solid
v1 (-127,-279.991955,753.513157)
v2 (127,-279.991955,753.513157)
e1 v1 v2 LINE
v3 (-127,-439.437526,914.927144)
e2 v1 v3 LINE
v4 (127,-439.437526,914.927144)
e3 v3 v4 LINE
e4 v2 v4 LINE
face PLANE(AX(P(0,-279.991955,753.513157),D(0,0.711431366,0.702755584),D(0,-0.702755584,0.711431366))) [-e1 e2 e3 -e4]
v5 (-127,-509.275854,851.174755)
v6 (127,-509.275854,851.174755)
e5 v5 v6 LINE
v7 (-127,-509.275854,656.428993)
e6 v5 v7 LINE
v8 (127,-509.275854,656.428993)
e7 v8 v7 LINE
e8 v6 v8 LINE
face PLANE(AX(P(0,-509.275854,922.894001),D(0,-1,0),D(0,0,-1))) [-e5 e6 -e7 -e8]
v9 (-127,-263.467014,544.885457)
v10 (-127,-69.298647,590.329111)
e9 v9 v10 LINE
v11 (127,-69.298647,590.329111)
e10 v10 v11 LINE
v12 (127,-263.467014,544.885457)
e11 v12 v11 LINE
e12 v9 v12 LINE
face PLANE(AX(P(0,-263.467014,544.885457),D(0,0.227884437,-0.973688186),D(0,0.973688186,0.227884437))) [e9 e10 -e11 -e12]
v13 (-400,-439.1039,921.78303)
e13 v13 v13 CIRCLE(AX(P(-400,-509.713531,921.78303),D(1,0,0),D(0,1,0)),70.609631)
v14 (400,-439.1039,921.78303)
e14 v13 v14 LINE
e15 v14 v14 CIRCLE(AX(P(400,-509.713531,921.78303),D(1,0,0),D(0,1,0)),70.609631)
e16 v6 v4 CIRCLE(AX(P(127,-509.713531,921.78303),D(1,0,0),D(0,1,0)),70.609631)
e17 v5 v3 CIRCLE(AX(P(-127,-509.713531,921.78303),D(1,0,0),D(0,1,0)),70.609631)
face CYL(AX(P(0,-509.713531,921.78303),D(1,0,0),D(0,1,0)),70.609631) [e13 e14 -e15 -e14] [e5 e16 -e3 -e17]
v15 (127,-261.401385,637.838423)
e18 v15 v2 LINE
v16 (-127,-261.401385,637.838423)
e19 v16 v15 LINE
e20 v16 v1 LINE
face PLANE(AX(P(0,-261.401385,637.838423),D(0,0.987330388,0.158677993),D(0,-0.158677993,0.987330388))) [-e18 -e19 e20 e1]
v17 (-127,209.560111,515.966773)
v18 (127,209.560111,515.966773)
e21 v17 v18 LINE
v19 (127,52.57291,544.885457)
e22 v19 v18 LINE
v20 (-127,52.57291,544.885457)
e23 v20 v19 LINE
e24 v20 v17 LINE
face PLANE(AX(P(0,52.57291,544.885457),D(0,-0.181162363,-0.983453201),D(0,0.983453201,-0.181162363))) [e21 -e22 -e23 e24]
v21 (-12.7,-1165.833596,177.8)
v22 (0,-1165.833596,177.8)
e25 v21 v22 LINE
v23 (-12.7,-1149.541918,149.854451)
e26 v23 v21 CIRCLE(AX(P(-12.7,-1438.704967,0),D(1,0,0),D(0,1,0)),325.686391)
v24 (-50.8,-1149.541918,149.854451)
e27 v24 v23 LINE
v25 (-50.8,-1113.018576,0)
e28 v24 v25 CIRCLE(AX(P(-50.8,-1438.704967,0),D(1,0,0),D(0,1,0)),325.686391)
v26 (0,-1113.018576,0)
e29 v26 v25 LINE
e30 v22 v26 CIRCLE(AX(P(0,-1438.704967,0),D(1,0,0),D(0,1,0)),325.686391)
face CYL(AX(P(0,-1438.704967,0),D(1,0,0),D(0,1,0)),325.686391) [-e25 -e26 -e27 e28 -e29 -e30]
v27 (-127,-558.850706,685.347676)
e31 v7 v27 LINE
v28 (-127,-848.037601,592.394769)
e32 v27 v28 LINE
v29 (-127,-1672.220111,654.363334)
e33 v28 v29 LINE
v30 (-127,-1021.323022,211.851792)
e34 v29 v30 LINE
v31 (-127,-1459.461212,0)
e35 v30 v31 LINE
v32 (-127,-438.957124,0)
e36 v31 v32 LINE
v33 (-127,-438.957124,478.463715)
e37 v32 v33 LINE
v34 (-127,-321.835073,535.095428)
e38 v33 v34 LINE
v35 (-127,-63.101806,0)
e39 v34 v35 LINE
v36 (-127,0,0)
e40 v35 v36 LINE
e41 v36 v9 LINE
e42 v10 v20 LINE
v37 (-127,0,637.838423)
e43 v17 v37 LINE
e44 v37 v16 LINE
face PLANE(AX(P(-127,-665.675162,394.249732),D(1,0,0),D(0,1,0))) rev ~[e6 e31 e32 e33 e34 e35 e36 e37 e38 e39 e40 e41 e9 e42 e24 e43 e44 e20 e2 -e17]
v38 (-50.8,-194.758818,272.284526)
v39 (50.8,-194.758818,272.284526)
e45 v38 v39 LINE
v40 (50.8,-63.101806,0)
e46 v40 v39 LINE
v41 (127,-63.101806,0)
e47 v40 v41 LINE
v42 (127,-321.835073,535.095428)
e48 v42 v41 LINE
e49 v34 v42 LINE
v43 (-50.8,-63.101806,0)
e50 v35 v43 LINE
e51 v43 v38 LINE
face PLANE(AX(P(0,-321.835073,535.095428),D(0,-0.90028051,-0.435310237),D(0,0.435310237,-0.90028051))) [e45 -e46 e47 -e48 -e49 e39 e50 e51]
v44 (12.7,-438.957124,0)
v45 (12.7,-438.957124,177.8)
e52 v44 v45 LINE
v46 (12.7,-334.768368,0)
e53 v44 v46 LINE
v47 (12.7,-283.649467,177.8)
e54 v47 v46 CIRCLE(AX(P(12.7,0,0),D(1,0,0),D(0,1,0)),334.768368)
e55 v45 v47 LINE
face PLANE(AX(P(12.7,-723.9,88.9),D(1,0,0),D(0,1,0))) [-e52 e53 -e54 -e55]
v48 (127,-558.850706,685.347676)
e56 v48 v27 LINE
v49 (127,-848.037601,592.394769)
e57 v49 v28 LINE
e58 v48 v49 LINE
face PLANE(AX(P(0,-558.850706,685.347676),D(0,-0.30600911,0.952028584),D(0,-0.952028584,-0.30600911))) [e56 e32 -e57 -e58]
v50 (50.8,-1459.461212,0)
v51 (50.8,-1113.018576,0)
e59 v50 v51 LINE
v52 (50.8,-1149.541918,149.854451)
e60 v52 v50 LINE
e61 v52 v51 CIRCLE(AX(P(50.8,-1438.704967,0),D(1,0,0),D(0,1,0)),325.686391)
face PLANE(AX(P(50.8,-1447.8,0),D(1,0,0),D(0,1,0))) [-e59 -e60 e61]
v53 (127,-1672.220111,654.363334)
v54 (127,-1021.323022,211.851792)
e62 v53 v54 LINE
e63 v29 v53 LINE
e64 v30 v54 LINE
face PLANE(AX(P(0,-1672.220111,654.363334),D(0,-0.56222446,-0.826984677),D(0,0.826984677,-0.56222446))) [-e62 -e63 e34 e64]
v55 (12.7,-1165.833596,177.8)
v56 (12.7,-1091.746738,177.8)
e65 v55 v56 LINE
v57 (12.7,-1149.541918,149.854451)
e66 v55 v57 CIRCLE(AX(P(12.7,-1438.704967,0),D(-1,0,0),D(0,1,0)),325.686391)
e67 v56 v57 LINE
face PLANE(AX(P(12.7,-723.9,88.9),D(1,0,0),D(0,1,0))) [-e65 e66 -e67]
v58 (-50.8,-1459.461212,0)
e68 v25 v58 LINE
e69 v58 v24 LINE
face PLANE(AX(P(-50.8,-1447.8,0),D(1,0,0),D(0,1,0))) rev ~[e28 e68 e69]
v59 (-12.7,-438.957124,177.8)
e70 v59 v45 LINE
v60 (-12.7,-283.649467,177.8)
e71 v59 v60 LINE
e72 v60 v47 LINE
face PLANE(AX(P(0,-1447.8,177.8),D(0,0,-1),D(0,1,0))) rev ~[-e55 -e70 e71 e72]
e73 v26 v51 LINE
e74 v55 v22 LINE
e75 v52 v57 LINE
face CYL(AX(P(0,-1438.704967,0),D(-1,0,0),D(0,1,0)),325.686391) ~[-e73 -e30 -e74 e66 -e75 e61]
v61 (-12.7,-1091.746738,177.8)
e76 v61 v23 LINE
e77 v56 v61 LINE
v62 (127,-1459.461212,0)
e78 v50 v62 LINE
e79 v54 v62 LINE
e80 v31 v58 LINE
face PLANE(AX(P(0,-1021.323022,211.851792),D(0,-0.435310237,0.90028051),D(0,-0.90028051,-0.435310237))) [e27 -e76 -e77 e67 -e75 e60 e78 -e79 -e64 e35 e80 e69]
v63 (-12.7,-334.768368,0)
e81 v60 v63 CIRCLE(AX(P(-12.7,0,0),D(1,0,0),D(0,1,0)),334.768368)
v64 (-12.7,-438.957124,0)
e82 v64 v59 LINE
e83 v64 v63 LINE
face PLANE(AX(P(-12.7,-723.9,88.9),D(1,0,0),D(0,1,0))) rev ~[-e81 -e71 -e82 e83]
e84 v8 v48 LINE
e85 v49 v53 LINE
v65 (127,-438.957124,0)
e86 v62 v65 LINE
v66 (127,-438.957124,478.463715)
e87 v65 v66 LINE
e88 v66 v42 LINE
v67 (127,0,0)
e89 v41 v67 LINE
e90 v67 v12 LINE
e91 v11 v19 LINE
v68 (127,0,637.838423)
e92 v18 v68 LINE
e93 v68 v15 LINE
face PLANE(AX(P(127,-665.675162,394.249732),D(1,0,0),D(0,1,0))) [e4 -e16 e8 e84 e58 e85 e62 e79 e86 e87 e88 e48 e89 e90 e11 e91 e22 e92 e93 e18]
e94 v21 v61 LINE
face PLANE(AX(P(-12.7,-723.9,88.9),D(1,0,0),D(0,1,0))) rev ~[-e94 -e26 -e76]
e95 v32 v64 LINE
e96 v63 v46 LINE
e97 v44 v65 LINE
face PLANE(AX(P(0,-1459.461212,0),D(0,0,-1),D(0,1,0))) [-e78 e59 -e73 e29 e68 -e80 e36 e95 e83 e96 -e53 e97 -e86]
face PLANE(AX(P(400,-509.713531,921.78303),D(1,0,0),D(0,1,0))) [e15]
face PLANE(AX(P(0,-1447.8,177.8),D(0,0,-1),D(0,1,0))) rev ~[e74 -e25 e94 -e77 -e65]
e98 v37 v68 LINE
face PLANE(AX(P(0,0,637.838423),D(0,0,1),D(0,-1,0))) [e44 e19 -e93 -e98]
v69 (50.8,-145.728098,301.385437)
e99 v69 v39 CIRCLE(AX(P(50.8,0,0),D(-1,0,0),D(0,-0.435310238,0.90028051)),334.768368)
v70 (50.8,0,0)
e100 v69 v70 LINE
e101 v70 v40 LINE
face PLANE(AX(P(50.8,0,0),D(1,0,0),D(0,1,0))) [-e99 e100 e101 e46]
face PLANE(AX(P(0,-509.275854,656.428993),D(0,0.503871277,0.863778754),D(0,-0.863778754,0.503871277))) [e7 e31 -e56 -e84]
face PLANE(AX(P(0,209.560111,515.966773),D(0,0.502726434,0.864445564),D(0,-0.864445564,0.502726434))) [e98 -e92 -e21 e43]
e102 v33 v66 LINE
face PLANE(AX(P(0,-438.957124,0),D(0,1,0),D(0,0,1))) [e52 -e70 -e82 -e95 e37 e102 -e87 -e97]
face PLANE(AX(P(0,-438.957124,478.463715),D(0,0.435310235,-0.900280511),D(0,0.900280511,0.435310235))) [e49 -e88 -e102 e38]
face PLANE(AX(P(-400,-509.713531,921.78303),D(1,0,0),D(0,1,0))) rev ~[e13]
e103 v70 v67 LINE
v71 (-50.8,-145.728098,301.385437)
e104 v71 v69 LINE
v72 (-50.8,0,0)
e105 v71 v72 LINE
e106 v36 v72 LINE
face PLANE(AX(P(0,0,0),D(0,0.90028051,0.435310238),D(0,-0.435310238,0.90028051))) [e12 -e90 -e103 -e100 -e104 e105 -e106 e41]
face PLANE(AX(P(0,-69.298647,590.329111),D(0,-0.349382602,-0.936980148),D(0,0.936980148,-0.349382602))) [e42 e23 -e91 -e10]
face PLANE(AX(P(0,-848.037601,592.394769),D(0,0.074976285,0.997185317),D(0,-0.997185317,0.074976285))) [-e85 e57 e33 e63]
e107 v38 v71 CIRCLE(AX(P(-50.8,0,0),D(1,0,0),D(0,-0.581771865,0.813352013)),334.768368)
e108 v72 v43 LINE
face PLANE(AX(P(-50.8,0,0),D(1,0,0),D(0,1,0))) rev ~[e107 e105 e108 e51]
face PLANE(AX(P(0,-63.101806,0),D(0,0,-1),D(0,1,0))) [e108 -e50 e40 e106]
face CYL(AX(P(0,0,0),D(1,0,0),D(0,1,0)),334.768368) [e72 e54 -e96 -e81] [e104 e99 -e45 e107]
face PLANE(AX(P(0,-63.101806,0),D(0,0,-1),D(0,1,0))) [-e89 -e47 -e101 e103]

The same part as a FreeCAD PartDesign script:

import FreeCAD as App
import Part
import Sketcher
Q = App.Units.Quantity

doc = App.newDocument("Part")
body = doc.addObject("PartDesign::Body", "Body")

sketch1 = doc.addObject("Sketcher::SketchObject", "Sketch")
body.addObject(sketch1)
sketch1.AttachmentSupport = (doc.YZ_Plane, [""])
sketch1.MapMode = "FlatFace"
sketch1.addGeometry(Part.Circle(App.Vector(0, 0, 0), App.Vector(0, 0, 1), 267), False)
sketch1.addConstraint([
    Sketcher.Constraint("Coincident", 0, 3, -1, 1),
    Sketcher.Constraint("Diameter", 0, Q("21 in")),
])
pad1 = doc.addObject("PartDesign::Pad", "Pad")
body.addObject(pad1)
pad1.Profile = sketch1
pad1.Length = Q("3 in")
pad1.Midplane = True
body2 = doc.addObject("PartDesign::Body", "Body001")

sketch2 = doc.addObject("Sketcher::SketchObject", "Sketch001")
body2.addObject(sketch2)
sketch2.AttachmentSupport = (doc.getObject("YZ_Plane001"), [""])
sketch2.MapMode = "FlatFace"
sketch2.addGeometry(Part.Circle(App.Vector(-1448, 0, 0), App.Vector(0, 0, 1), 229), False)
sketch2.addConstraint([
    Sketcher.Constraint("PointOnObject", 0, 3, -1),
    Sketcher.Constraint("Diameter", 0, Q("18 in")),
    Sketcher.Constraint("DistanceX", 0, 3, -1, 1, Q("57 in")),
])
pad2 = doc.addObject("PartDesign::Pad", "Pad001")
body2.addObject(pad2)
pad2.Profile = sketch2
pad2.Length = Q("4 in")
pad2.Midplane = True
body.AllowCompound = True
doc.recompute()

boolean = doc.addObject("PartDesign::Boolean", "Boolean")
body.addObject(boolean)
boolean.Type = "Fuse"
boolean.addObjects([body2])

sketch3 = doc.addObject("Sketcher::SketchObject", "Sketch002")
body.addObject(sketch3)
sketch3.AttachmentSupport = (doc.YZ_Plane, [""])
sketch3.MapMode = "FlatFace"
sketch3.addGeometry([
    Part.LineSegment(App.Vector(-1448, 178, 0), App.Vector(-1448, 0, 0)),
    Part.LineSegment(App.Vector(-1448, 0, 0), App.Vector(0, 0, 0)),
    Part.LineSegment(App.Vector(0, 0, 0), App.Vector(0, 178, 0)),
    Part.LineSegment(App.Vector(0, 178, 0), App.Vector(-1448, 178, 0)),
], False)
sketch3.addConstraint([
    Sketcher.Constraint("Coincident", 0, 2, 1, 1),
    Sketcher.Constraint("Coincident", 1, 2, 2, 1),
    Sketcher.Constraint("Coincident", 2, 2, 3, 1),
    Sketcher.Constraint("Coincident", 3, 2, 0, 1),
    Sketcher.Constraint("Vertical", 0),
    Sketcher.Constraint("Horizontal", 1),
    Sketcher.Constraint("Vertical", 2),
    Sketcher.Constraint("Horizontal", 3),
    Sketcher.Constraint("Coincident", 1, 2, -1, 1),
    Sketcher.Constraint("DistanceX", 1, 1, 1, 2, Q("57 in")),
    Sketcher.Constraint("DistanceY", 0, 2, 0, 1, Q("7 in")),
])
pad3 = doc.addObject("PartDesign::Pad", "Pad002")
body.addObject(pad3)
pad3.Profile = sketch3
pad3.Length = Q("1 in")
pad3.Midplane = True

sketch4 = doc.addObject("Sketcher::SketchObject", "Sketch003")
body.addObject(sketch4)
sketch4.AttachmentSupport = (doc.YZ_Plane, [""])
sketch4.MapMode = "FlatFace"
sketch4.addGeometry([
    Part.LineSegment(App.Vector(-848, 592, 0), App.Vector(-1672, 654, 0)),
    Part.LineSegment(App.Vector(-1672, 654, 0), App.Vector(-1021, 212, 0)),
    Part.LineSegment(App.Vector(-1021, 212, 0), App.Vector(-1459, 0, 0)),
    Part.LineSegment(App.Vector(-1459, 0, 0), App.Vector(-439, 0, 0)),
    Part.LineSegment(App.Vector(-439, 0, 0), App.Vector(-439, 478, 0)),
    Part.LineSegment(App.Vector(-439, 478, 0), App.Vector(-322, 535, 0)),
    Part.LineSegment(App.Vector(-322, 535, 0), App.Vector(-63, 0, 0)),
    Part.LineSegment(App.Vector(-63, 0, 0), App.Vector(0, 0, 0)),
    Part.LineSegment(App.Vector(0, 0, 0), App.Vector(-263, 545, 0)),
    Part.LineSegment(App.Vector(-263, 545, 0), App.Vector(-69, 590, 0)),
    Part.LineSegment(App.Vector(-69, 590, 0), App.Vector(53, 545, 0)),
    Part.LineSegment(App.Vector(53, 545, 0), App.Vector(210, 516, 0)),
    Part.LineSegment(App.Vector(210, 516, 0), App.Vector(0, 638, 0)),
    Part.LineSegment(App.Vector(0, 638, 0), App.Vector(-261, 638, 0)),
    Part.LineSegment(App.Vector(-261, 638, 0), App.Vector(-280, 754, 0)),
    Part.LineSegment(App.Vector(-280, 754, 0), App.Vector(-447, 923, 0)),
    Part.LineSegment(App.Vector(-447, 923, 0), App.Vector(-509, 923, 0)),
    Part.LineSegment(App.Vector(-509, 923, 0), App.Vector(-509, 656, 0)),
    Part.LineSegment(App.Vector(-509, 656, 0), App.Vector(-559, 685, 0)),
    Part.LineSegment(App.Vector(-559, 685, 0), App.Vector(-848, 592, 0)),
], False)
sketch4.addConstraint([
    Sketcher.Constraint("Coincident", 0, 2, 1, 1),
    Sketcher.Constraint("Coincident", 1, 2, 2, 1),
    Sketcher.Constraint("Coincident", 2, 2, 3, 1),
    Sketcher.Constraint("Coincident", 3, 2, 4, 1),
    Sketcher.Constraint("Coincident", 4, 2, 5, 1),
    Sketcher.Constraint("Coincident", 5, 2, 6, 1),
    Sketcher.Constraint("Coincident", 6, 2, 7, 1),
    Sketcher.Constraint("Coincident", 7, 2, 8, 1),
    Sketcher.Constraint("Coincident", 8, 2, 9, 1),
    Sketcher.Constraint("Coincident", 9, 2, 10, 1),
    Sketcher.Constraint("Coincident", 10, 2, 11, 1),
    Sketcher.Constraint("Coincident", 11, 2, 12, 1),
    Sketcher.Constraint("Coincident", 12, 2, 13, 1),
    Sketcher.Constraint("Coincident", 13, 2, 14, 1),
    Sketcher.Constraint("Coincident", 14, 2, 15, 1),
    Sketcher.Constraint("Coincident", 15, 2, 16, 1),
    Sketcher.Constraint("Coincident", 16, 2, 17, 1),
    Sketcher.Constraint("Coincident", 17, 2, 18, 1),
    Sketcher.Constraint("Coincident", 18, 2, 19, 1),
    Sketcher.Constraint("Coincident", 19, 2, 0, 1),
    Sketcher.Constraint("Horizontal", 3),
    Sketcher.Constraint("Vertical", 4),
    Sketcher.Constraint("Horizontal", 7),
    Sketcher.Constraint("Horizontal", 13),
    Sketcher.Constraint("Horizontal", 16),
    Sketcher.Constraint("Vertical", 17),
    Sketcher.Constraint("Coincident", 7, 2, -1, 1),
    Sketcher.Constraint("PointOnObject", 2, 2, -1),
    Sketcher.Constraint("PointOnObject", 12, 2, -2),
    Sketcher.Constraint("Parallel", 2, 5),
    Sketcher.Constraint("Perpendicular", 5, 6),
    Sketcher.Constraint("Parallel", 6, 8),
    Sketcher.Constraint("Horizontal", 8, 2, 10, 2),
    Sketcher.Constraint("DistanceY", 5, 2, 12, 2, Q("4.0449998 in")),
    Sketcher.Constraint("DistanceX", 13, 2, 9, 2, Q("7.5630999 in")),
    Sketcher.Constraint("DistanceY", 17, 2, 17, 1, Q("266.465008 mm")),
    Sketcher.Constraint("DistanceY", -1, 1, 15, 2, Q("922.894001 mm")),
    Sketcher.Constraint("DistanceX", 19, 2, -1, 1, Q("848.037601 mm")),
    Sketcher.Constraint("DistanceX", 0, 2, 2, 2, Q("212.758899 mm")),
    Sketcher.Constraint("DistanceX", 1, 2, 3, 2, Q("582.365898 mm")),
    Sketcher.Constraint("DistanceX", 10, 2, 11, 2, Q("156.987201 mm")),
    Sketcher.Constraint("DistanceY", 8, 2, 14, 2, Q("208.6277 mm")),
    Sketcher.Constraint("DistanceX", 16, 2, 14, 2, Q("229.283899 mm")),
    Sketcher.Constraint("Distance", 0, Q("826.50887 mm")),
    Sketcher.Constraint("Distance", 1, Q("787.072732 mm")),
    Sketcher.Constraint("Distance", 10, Q("130.068452 mm")),
    Sketcher.Constraint("Distance", 12, Q("242.421408 mm")),
    Sketcher.Constraint("Distance", 15, Q("238.084588 mm")),
    Sketcher.Constraint("DistanceX", 3, 1, 3, 2, Q("1020.504088 mm")),
    Sketcher.Constraint("DistanceX", 7, 1, 7, 2, Q("63.101806 mm")),
    Sketcher.Constraint("DistanceX", 13, 2, 13, 1, Q("261.401385 mm")),
    Sketcher.Constraint("DistanceX", 16, 2, 16, 1, Q("61.968625 mm")),
    Sketcher.Constraint("DistanceY", 4, 1, 4, 2, Q("478.463715 mm")),
    Sketcher.Constraint("DistanceX", 0, 2, -1, 1, Q("1672.220111 mm")),
    Sketcher.Constraint("DistanceY", -1, 1, 1, 2, Q("211.851792 mm")),
    Sketcher.Constraint("DistanceY", -1, 1, 9, 2, Q("590.329111 mm")),
    Sketcher.Constraint("DistanceX", 15, 2, -1, 1, Q("447.307229 mm")),
    Sketcher.Constraint("DistanceX", 18, 2, 17, 2, Q("49.574852 mm")),
    Sketcher.Constraint("DistanceY", 4, 2, 18, 2, Q("206.883961 mm")),
])
pad4 = doc.addObject("PartDesign::Pad", "Pad003")
body.addObject(pad4)
pad4.Profile = sketch4
pad4.Length = Q("10 in")
pad4.Midplane = True

sketch5 = doc.addObject("Sketcher::SketchObject", "Sketch004")
body.addObject(sketch5)
sketch5.AttachmentSupport = (doc.YZ_Plane, [""])
sketch5.MapMode = "FlatFace"
sketch5.addGeometry([
    Part.Circle(App.Vector(-1439, 0, 0), App.Vector(0, 0, 1), 326),
    Part.Circle(App.Vector(0, 0, 0), App.Vector(0, 0, 1), 335),
], False)
sketch5.addConstraint([
    Sketcher.Constraint("Coincident", 1, 3, -1, 1),
    Sketcher.Constraint("PointOnObject", 0, 3, -1),
    Sketcher.Constraint("Diameter", 0, Q("651.372782 mm")),
    Sketcher.Constraint("Diameter", 1, Q("669.536736 mm")),
    Sketcher.Constraint("DistanceX", 0, 3, -1, 1, Q("1438.704967 mm")),
])
pad5 = doc.addObject("PartDesign::Pad", "Pad004")
body.addObject(pad5)
pad5.Profile = sketch5
pad5.Length = Q("4 in")
pad5.Midplane = True

sketch6 = doc.addObject("Sketcher::SketchObject", "Sketch005")
body.addObject(sketch6)
sketch6.AttachmentSupport = (doc.YZ_Plane, [""])
sketch6.MapMode = "FlatFace"
sketch6.addGeometry(Part.Circle(App.Vector(-510, 922, 0), App.Vector(0, 0, 1), 71), False)
sketch6.addConstraint([
    Sketcher.Constraint("Diameter", 0, Q("141.219262 mm")),
    Sketcher.Constraint("DistanceX", 0, 3, -1, 1, Q("509.713531 mm")),
    Sketcher.Constraint("DistanceY", -1, 1, 0, 3, Q("921.78303 mm")),
])
pad6 = doc.addObject("PartDesign::Pad", "Pad005")
body.addObject(pad6)
pad6.Profile = sketch6
pad6.Length = 800
pad6.Midplane = True

doc.recompute()
